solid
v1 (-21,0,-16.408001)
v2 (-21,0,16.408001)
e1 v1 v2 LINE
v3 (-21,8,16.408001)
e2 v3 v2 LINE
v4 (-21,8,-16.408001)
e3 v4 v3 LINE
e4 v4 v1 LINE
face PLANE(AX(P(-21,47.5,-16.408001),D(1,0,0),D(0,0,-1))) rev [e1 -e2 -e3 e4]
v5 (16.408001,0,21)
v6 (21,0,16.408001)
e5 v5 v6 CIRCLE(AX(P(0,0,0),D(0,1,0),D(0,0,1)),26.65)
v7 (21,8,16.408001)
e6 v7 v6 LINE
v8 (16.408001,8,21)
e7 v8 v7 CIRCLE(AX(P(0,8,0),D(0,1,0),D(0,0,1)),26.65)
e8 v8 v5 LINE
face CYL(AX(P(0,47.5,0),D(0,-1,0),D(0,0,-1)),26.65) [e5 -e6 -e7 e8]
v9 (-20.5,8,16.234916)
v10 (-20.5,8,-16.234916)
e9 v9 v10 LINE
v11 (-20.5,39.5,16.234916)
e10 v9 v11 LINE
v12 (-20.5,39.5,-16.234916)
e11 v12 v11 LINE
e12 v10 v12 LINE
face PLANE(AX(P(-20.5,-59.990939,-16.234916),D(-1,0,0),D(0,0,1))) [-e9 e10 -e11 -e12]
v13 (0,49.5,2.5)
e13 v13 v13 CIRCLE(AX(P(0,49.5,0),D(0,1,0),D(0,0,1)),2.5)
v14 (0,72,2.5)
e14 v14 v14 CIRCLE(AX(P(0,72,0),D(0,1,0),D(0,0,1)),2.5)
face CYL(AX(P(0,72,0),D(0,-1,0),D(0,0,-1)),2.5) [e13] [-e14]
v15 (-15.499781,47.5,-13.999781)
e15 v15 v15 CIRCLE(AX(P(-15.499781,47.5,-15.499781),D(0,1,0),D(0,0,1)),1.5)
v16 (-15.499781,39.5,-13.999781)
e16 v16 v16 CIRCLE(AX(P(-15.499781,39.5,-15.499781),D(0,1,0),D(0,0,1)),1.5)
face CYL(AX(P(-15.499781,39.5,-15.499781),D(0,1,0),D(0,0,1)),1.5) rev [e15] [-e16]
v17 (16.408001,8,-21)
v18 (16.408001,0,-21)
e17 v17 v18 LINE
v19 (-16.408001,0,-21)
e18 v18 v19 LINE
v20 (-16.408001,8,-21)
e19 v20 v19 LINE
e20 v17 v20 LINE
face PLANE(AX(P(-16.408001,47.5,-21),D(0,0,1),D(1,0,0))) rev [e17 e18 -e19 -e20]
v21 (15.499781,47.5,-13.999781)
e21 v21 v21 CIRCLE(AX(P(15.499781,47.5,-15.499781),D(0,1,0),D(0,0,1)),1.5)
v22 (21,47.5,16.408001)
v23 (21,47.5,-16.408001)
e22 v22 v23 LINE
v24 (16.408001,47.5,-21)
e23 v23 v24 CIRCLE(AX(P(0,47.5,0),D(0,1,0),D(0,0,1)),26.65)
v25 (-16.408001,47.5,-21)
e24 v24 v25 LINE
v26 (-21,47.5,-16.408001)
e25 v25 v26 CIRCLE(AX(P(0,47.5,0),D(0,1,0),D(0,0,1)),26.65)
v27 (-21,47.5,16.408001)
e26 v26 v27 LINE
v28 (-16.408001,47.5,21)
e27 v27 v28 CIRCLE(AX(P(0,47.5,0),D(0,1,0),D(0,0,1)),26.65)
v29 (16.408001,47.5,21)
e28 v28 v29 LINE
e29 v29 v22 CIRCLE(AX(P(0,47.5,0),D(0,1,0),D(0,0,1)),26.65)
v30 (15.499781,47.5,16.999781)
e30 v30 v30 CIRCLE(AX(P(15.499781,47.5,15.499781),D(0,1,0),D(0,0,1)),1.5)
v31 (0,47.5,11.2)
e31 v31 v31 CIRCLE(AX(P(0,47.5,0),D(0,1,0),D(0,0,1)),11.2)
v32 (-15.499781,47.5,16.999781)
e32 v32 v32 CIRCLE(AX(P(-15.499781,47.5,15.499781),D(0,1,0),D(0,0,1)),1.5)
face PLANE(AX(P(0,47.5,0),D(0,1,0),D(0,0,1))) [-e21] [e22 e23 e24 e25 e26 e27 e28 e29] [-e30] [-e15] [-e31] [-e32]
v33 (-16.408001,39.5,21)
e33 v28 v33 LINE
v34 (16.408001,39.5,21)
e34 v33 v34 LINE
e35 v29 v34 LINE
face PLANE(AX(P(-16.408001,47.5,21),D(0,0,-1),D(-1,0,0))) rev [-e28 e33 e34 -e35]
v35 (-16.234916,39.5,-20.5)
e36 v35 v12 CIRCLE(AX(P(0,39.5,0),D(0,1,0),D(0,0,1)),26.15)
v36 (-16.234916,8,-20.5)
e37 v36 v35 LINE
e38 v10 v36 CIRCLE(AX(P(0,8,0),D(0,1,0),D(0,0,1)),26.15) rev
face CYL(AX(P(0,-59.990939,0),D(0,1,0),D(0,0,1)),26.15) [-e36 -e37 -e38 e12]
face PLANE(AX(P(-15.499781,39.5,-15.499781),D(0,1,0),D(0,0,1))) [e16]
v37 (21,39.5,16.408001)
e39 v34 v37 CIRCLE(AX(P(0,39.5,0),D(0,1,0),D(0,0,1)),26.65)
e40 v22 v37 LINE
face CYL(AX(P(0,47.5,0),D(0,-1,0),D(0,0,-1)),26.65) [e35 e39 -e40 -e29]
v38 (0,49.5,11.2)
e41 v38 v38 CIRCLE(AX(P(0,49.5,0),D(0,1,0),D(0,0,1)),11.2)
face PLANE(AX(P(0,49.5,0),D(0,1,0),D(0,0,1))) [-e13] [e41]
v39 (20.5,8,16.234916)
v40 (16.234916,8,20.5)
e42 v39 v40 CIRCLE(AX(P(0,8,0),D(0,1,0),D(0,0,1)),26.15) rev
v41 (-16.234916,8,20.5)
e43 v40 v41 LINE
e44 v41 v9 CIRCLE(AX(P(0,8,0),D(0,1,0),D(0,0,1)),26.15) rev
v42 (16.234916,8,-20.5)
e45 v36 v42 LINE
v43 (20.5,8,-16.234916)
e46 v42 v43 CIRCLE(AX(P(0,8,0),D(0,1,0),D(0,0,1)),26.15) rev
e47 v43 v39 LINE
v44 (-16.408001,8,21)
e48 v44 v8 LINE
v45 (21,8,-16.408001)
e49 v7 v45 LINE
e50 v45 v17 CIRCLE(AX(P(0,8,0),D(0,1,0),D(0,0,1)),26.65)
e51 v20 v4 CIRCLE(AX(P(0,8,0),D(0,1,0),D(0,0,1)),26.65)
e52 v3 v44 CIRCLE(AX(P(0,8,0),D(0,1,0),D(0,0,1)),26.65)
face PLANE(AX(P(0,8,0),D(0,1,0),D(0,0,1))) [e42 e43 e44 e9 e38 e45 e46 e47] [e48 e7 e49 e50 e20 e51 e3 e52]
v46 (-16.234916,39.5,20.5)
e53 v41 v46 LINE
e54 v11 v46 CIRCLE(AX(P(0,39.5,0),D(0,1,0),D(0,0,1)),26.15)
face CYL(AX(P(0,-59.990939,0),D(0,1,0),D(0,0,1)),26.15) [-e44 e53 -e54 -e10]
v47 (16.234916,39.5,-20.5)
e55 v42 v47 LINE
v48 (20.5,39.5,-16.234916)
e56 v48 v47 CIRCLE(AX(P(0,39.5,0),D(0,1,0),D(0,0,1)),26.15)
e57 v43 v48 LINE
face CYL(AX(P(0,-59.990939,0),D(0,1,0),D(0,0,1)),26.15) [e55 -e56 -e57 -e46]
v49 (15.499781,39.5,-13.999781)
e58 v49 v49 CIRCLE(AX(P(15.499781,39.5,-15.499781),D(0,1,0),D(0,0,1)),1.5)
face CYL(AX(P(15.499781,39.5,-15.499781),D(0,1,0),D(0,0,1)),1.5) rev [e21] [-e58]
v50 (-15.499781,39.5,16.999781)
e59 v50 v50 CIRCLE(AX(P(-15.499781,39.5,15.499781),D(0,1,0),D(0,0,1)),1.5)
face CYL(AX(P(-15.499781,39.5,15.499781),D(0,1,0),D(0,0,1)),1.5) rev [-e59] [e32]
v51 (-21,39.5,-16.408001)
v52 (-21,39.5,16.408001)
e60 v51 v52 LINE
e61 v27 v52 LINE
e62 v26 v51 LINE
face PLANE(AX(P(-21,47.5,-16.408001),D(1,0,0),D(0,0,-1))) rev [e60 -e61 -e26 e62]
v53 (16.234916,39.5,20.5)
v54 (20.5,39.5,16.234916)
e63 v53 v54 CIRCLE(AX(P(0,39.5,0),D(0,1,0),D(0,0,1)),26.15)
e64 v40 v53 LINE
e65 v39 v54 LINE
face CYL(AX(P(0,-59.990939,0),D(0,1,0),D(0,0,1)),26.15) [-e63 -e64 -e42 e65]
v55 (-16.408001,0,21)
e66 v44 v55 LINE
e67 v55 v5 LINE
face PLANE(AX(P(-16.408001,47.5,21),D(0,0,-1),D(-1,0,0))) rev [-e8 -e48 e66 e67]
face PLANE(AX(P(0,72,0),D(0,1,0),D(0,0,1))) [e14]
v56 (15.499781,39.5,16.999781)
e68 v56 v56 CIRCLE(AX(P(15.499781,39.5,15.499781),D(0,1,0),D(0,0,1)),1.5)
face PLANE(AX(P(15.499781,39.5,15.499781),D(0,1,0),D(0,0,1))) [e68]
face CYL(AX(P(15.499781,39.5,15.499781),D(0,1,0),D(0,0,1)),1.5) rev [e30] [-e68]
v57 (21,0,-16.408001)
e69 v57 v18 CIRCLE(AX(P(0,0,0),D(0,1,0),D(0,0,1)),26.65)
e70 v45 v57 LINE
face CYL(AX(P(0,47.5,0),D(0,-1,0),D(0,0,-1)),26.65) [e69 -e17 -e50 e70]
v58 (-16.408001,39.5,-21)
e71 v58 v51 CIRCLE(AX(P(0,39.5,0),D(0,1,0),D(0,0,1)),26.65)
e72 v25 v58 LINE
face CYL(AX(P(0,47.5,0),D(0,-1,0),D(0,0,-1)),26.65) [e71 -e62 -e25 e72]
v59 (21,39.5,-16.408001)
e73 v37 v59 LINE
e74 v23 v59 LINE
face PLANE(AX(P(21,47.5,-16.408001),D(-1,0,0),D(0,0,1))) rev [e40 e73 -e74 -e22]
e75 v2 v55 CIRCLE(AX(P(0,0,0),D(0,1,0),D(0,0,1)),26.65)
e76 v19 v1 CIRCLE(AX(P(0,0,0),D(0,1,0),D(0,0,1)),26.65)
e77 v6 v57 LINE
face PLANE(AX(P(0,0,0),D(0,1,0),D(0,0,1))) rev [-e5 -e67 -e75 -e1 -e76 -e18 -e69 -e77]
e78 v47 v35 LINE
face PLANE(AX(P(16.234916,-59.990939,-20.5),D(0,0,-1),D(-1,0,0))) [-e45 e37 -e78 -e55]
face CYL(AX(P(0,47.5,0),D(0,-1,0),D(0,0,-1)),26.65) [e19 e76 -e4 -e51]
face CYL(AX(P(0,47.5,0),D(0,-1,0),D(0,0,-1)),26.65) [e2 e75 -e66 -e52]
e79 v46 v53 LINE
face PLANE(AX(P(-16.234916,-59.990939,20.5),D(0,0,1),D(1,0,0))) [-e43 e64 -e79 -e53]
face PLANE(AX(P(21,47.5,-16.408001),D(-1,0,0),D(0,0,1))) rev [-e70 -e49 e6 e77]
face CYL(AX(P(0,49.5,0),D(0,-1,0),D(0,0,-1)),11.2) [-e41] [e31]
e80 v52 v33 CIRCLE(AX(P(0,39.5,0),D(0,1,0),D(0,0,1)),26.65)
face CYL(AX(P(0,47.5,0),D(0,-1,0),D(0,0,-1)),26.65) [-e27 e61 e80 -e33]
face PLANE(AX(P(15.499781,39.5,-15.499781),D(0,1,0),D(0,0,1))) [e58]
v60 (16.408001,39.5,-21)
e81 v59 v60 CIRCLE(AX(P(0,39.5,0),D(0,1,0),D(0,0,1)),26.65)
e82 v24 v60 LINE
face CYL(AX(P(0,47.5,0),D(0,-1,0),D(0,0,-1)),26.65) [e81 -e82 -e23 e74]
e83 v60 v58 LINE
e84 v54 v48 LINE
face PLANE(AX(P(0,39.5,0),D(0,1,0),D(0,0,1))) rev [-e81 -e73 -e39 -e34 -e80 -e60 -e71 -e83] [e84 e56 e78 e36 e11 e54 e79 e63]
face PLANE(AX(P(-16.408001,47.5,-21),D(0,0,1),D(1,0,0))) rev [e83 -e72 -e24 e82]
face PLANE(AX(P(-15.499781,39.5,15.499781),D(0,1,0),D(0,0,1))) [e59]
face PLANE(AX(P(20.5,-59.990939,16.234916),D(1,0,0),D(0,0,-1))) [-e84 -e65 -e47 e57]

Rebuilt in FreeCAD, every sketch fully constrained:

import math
import FreeCAD as App
import Part
import Sketcher

V = App.Vector


def add_polygon(sketch, points):
    """Adds a closed chain of lines whose ends are joined by coincident constraints."""
    first, n = sketch.GeometryCount, len(points)
    for a, b in zip(points, points[1:] + points[:1]):
        sketch.addGeometry(Part.LineSegment(App.Vector(*a, 0), App.Vector(*b, 0)), False)
    for i in range(n):
        sketch.addConstraint(Sketcher.Constraint("Coincident", first + i, 2, first + (i + 1) % n, 1))

doc = App.newDocument("Part")
body = doc.addObject("PartDesign::Body", "Body")

# Sketch on XZ plane
sketch1 = body.newObject("Sketcher::SketchObject", "Sketch")
sketch1.AttachmentSupport = (doc.getObject("XZ_Plane"), [""])
sketch1.MapMode = "FlatFace"
sketch1.addGeometry(Part.LineSegment(V(16.408001, -21, 0), V(-16.408001, -21, 0)), False)
sketch1.addGeometry(Part.ArcOfCircle(Part.Circle(V(0, 0, 0), V(0, 0, 1), 26.65), math.radians(-141.998301), math.radians(-128.001699)), False)
sketch1.addGeometry(Part.LineSegment(V(-21, -16.408001, 0), V(-21, 16.408001, 0)), False)
sketch1.addGeometry(Part.ArcOfCircle(Part.Circle(V(0, 0, 0), V(0, 0, 1), 26.65), math.radians(128.001699), math.radians(141.998301)), False)
sketch1.addGeometry(Part.LineSegment(V(-16.408001, 21, 0), V(16.408001, 21, 0)), False)
sketch1.addGeometry(Part.ArcOfCircle(Part.Circle(V(0, 0, 0), V(0, 0, 1), 26.65), math.radians(38.001699), math.radians(51.998301)), False)
sketch1.addGeometry(Part.LineSegment(V(21, 16.408001, 0), V(21, -16.408001, 0)), False)
sketch1.addGeometry(Part.ArcOfCircle(Part.Circle(V(0, 0, 0), V(0, 0, 1), 26.65), math.radians(-51.998301), math.radians(-38.001699)), False)
sketch1.addConstraint(Sketcher.Constraint("Coincident", 0, 2, 1, 2))
sketch1.addConstraint(Sketcher.Constraint("Coincident", 1, 1, 2, 1))
sketch1.addConstraint(Sketcher.Constraint("Coincident", 2, 2, 3, 2))
sketch1.addConstraint(Sketcher.Constraint("Coincident", 3, 1, 4, 1))
sketch1.addConstraint(Sketcher.Constraint("Coincident", 4, 2, 5, 2))
sketch1.addConstraint(Sketcher.Constraint("Coincident", 5, 1, 6, 1))
sketch1.addConstraint(Sketcher.Constraint("Coincident", 6, 2, 7, 2))
sketch1.addConstraint(Sketcher.Constraint("Coincident", 7, 1, 0, 1))
sketch1.addConstraint(Sketcher.Constraint("Horizontal", 0))
sketch1.addConstraint(Sketcher.Constraint("Vertical", 2))
sketch1.addConstraint(Sketcher.Constraint("Horizontal", 4))
sketch1.addConstraint(Sketcher.Constraint("Vertical", 6))
sketch1.addConstraint(Sketcher.Constraint("Coincident", 1, 3, -1, 1))
sketch1.addConstraint(Sketcher.Constraint("Coincident", 3, 3, -1, 1))
sketch1.addConstraint(Sketcher.Constraint("Coincident", 5, 3, -1, 1))
sketch1.addConstraint(Sketcher.Constraint("Coincident", 7, 3, -1, 1))
sketch1.addConstraint(Sketcher.Constraint("Equal", 1, 3))
sketch1.addConstraint(Sketcher.Constraint("Equal", 3, 5))
sketch1.addConstraint(Sketcher.Constraint("Equal", 5, 7))
sketch1.addConstraint(Sketcher.Constraint("Horizontal", 2, 2, 5, 1))
sketch1.addConstraint(Sketcher.Constraint("Vertical", 0, 2, 3, 1))
sketch1.addConstraint(Sketcher.Constraint("Equal", 4, 2))
sketch1.addConstraint(Sketcher.Constraint("Radius", 1, 26.65))
sketch1.addConstraint(Sketcher.Constraint("DistanceY", 0, 2, -1, 1, 21.0))
pad1 = body.newObject("PartDesign::Pad", "Pad")
pad1.Profile = sketch1
pad1.Length = 47.5
pad1.Reversed = True

# Sketch on XZ plane
sketch2 = body.newObject("Sketcher::SketchObject", "Sketch001")
sketch2.AttachmentSupport = (doc.getObject("XZ_Plane"), [""])
sketch2.MapMode = "FlatFace"
sketch2.AttachmentOffset = App.Placement(V(0, 0, -47.5), App.Rotation())
sketch2.addGeometry(Part.Circle(V(-15.499781, -15.499781, 0), V(0, 0, 1), 1.5), False)
sketch2.addGeometry(Part.Circle(V(-15.499781, 15.499781, 0), V(0, 0, 1), 1.5), False)
sketch2.addGeometry(Part.Circle(V(15.499781, 15.499781, 0), V(0, 0, 1), 1.5), False)
sketch2.addGeometry(Part.Circle(V(15.499781, -15.499781, 0), V(0, 0, 1), 1.5), False)
sketch2.addConstraint(Sketcher.Constraint("Equal", 0, 1))
sketch2.addConstraint(Sketcher.Constraint("Equal", 1, 2))
sketch2.addConstraint(Sketcher.Constraint("Equal", 2, 3))
sketch2.addConstraint(Sketcher.Constraint("Symmetric", 0, 3, 2, 3, -1, 1))
sketch2.addConstraint(Sketcher.Constraint("Symmetric", 1, 3, 3, 3, -1, 1))
sketch2.addConstraint(Sketcher.Constraint("Symmetric", 1, 3, 2, 3, -2))
sketch2.addConstraint(Sketcher.Constraint("Diameter", 0, 3.0))
sketch2.addConstraint(Sketcher.Constraint("DistanceX", 0, 3, -1, 1, 15.499781))
sketch2.addConstraint(Sketcher.Constraint("DistanceY", 0, 3, -1, 1, 15.499781))
pocket1 = body.newObject("PartDesign::Pocket", "Pocket")
pocket1.Profile = sketch2
pocket1.Length = 8
pocket1.Reversed = True

# Sketch on XZ plane
sketch3 = body.newObject("Sketcher::SketchObject", "Sketch002")
sketch3.AttachmentSupport = (doc.getObject("XZ_Plane"), [""])
sketch3.MapMode = "FlatFace"
sketch3.AttachmentOffset = App.Placement(V(0, 0, -47.5), App.Rotation())
sketch3.addGeometry(Part.Circle(V(0, 0, 0), V(0, 0, 1), 11.2), False)
sketch3.addConstraint(Sketcher.Constraint("Coincident", 0, 3, -1, 1))
sketch3.addConstraint(Sketcher.Constraint("Diameter", 0, 22.4))
pad2 = body.newObject("PartDesign::Pad", "Pad001")
pad2.Profile = sketch3
pad2.Length = 2
pad2.Reversed = True

# Sketch on XZ plane
sketch4 = body.newObject("Sketcher::SketchObject", "Sketch003")
sketch4.AttachmentSupport = (doc.getObject("XZ_Plane"), [""])
sketch4.MapMode = "FlatFace"
sketch4.AttachmentOffset = App.Placement(V(0, 0, -49.5), App.Rotation())
sketch4.addGeometry(Part.Circle(V(0, 0, 0), V(0, 0, 1), 2.5), False)
sketch4.addConstraint(Sketcher.Constraint("Coincident", 0, 3, -1, 1))
sketch4.addConstraint(Sketcher.Constraint("Diameter", 0, 5.0))
pad3 = body.newObject("PartDesign::Pad", "Pad002")
pad3.Profile = sketch4
pad3.Length = 22.5
pad3.Reversed = True

# Sketch on XZ plane
sketch5 = body.newObject("Sketcher::SketchObject", "Sketch004")
sketch5.AttachmentSupport = (doc.getObject("XZ_Plane"), [""])
sketch5.MapMode = "FlatFace"
sketch5.AttachmentOffset = App.Placement(V(0, 0, -39.5), App.Rotation())
add_polygon(sketch5, [(-31.334, -31.334), (-31.334, 31.334), (31.334, 31.334), (31.334, -31.334)])  # lines 0-3
sketch5.addGeometry(Part.LineSegment(V(-20.5, 16.234916, 0), V(-20.5, -16.234916, 0)), False)  # 4
sketch5.addGeometry(Part.ArcOfCircle(Part.Circle(V(0, 0, 0), V(0, 0, 1), 26.15), math.radians(-141.622638), math.radians(-128.377362)), False)  # 5
sketch5.addGeometry(Part.LineSegment(V(-16.234916, -20.5, 0), V(16.234916, -20.5, 0)), False)  # 6
sketch5.addGeometry(Part.ArcOfCircle(Part.Circle(V(0, 0, 0), V(0, 0, 1), 26.15), math.radians(-51.622638), math.radians(-38.377362)), False)  # 7
sketch5.addGeometry(Part.LineSegment(V(20.5, -16.234916, 0), V(20.5, 16.234916, 0)), False)  # 8
sketch5.addGeometry(Part.ArcOfCircle(Part.Circle(V(0, 0, 0), V(0, 0, 1), 26.15), math.radians(38.377362), math.radians(51.622638)), False)  # 9
sketch5.addGeometry(Part.LineSegment(V(16.234916, 20.5, 0), V(-16.234916, 20.5, 0)), False)  # 10
sketch5.addGeometry(Part.ArcOfCircle(Part.Circle(V(0, 0, 0), V(0, 0, 1), 26.15), math.radians(128.377362), math.radians(141.622638)), False)  # 11
sketch5.addConstraint(Sketcher.Constraint("Coincident", 4, 2, 5, 1))
sketch5.addConstraint(Sketcher.Constraint("Coincident", 5, 2, 6, 1))
sketch5.addConstraint(Sketcher.Constraint("Coincident", 6, 2, 7, 1))
sketch5.addConstraint(Sketcher.Constraint("Coincident", 7, 2, 8, 1))
sketch5.addConstraint(Sketcher.Constraint("Coincident", 8, 2, 9, 1))
sketch5.addConstraint(Sketcher.Constraint("Coincident", 9, 2, 10, 1))
sketch5.addConstraint(Sketcher.Constraint("Coincident", 10, 2, 11, 1))
sketch5.addConstraint(Sketcher.Constraint("Coincident", 11, 2, 4, 1))
sketch5.addConstraint(Sketcher.Constraint("Vertical", 0))
sketch5.addConstraint(Sketcher.Constraint("Horizontal", 1))
sketch5.addConstraint(Sketcher.Constraint("Vertical", 2))
sketch5.addConstraint(Sketcher.Constraint("Horizontal", 3))
sketch5.addConstraint(Sketcher.Constraint("Vertical", 4))
sketch5.addConstraint(Sketcher.Constraint("Horizontal", 6))
sketch5.addConstraint(Sketcher.Constraint("Vertical", 8))
sketch5.addConstraint(Sketcher.Constraint("Horizontal", 10))
sketch5.addConstraint(Sketcher.Constraint("Coincident", 5, 3, -1, 1))
sketch5.addConstraint(Sketcher.Constraint("Coincident", 7, 3, -1, 1))
sketch5.addConstraint(Sketcher.Constraint("Coincident", 9, 3, -1, 1))
sketch5.addConstraint(Sketcher.Constraint("Coincident", 11, 3, -1, 1))
sketch5.addConstraint(Sketcher.Constraint("Equal", 5, 7))
sketch5.addConstraint(Sketcher.Constraint("Equal", 7, 9))
sketch5.addConstraint(Sketcher.Constraint("Equal", 9, 11))
sketch5.addConstraint(Sketcher.Constraint("Symmetric", 0, 2, 2, 2, -1, 1))
sketch5.addConstraint(Sketcher.Constraint("Horizontal", 4, 2, 7, 2))
sketch5.addConstraint(Sketcher.Constraint("Vertical", 6, 2, 9, 2))
sketch5.addConstraint(Sketcher.Constraint("Equal", 3, 0))
sketch5.addConstraint(Sketcher.Constraint("Equal", 10, 4))
sketch5.addConstraint(Sketcher.Constraint("Radius", 5, 26.15))
sketch5.addConstraint(Sketcher.Constraint("DistanceX", 4, 2, -1, 1, 20.5))
sketch5.addConstraint(Sketcher.Constraint("DistanceX", 1, 1, 1, 2, 62.668))
pocket2 = body.newObject("PartDesign::Pocket", "Pocket001")
pocket2.Profile = sketch5
pocket2.Length = 31.5
pocket2.Reversed = True

doc.recompute()
